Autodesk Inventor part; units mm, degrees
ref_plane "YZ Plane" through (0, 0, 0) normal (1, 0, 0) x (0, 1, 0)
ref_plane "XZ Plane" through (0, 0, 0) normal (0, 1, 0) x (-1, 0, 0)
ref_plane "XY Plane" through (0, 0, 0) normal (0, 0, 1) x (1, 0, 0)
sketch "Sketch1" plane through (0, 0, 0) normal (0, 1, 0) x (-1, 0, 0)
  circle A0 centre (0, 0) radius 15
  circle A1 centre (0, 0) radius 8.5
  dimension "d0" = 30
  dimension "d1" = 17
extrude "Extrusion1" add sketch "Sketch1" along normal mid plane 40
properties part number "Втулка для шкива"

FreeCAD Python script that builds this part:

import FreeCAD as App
import Part
import Sketcher

V = App.Vector

doc = App.newDocument("Part")
body = doc.addObject("PartDesign::Body", "Body")

# Sketch on XZ plane
sketch1 = body.newObject("Sketcher::SketchObject", "Sketch")
sketch1.AttachmentSupport = (doc.getObject("XZ_Plane"), [""])
sketch1.MapMode = "FlatFace"
sketch1.addGeometry(Part.Circle(V(0, 0, 0), V(0, 0, 1), 15), False)
sketch1.addGeometry(Part.Circle(V(0, 0, 0), V(0, 0, 1), 8.5), False)
sketch1.addConstraint(Sketcher.Constraint("Coincident", 0, 3, -1, 1))
sketch1.addConstraint(Sketcher.Constraint("Coincident", 1, 3, -1, 1))
sketch1.addConstraint(Sketcher.Constraint("Diameter", 0, 30.0))
sketch1.addConstraint(Sketcher.Constraint("Diameter", 1, 17.0))
pad1 = body.newObject("PartDesign::Pad", "Pad")
pad1.Profile = sketch1
pad1.Length = 40
pad1.Midplane = True

doc.recompute()
